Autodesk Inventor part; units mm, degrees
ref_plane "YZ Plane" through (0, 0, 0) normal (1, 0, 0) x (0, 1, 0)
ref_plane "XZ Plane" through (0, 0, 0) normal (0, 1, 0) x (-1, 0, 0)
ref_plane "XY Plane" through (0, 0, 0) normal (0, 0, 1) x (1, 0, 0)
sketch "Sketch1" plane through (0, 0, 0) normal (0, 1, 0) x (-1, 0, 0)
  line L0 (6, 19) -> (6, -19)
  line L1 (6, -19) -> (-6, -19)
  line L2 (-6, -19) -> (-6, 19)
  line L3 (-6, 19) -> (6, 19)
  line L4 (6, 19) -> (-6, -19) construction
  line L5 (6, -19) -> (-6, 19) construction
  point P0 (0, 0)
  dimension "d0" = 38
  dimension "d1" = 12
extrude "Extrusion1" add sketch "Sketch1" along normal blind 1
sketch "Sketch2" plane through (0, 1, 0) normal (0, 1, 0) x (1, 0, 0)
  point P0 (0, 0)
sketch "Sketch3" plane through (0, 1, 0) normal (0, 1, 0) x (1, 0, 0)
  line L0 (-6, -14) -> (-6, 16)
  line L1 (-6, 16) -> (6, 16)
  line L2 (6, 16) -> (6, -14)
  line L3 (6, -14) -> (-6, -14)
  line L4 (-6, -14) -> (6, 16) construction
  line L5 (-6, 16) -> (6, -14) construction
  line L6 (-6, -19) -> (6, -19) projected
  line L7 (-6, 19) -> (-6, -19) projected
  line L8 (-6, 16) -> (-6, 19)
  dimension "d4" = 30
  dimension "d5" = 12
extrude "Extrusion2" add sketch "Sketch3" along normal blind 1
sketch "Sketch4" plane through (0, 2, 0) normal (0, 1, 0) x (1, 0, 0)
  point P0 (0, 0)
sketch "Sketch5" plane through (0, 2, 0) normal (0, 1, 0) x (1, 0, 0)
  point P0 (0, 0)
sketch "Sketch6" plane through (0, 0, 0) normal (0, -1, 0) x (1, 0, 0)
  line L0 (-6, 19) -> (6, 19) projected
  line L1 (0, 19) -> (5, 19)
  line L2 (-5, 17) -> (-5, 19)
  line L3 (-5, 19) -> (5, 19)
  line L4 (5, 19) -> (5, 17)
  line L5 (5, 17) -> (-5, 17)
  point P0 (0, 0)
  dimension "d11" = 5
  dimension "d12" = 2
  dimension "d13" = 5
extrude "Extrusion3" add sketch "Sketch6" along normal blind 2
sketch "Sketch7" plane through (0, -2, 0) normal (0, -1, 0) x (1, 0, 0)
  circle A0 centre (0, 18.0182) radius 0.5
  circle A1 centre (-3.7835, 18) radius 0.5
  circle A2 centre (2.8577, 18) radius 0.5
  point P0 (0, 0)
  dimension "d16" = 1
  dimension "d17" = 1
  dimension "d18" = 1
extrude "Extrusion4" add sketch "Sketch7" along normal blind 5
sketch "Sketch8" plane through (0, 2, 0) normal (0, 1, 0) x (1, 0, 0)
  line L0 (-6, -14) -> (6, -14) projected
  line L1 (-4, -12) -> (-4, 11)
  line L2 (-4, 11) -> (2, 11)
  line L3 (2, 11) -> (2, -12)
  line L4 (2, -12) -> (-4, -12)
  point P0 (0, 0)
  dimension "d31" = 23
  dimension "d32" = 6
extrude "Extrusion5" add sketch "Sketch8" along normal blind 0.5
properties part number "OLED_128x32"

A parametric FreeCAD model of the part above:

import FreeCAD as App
import Part
import Sketcher
from FreeCAD import Vector


def add_polygon(sketch, points):
    """Adds a closed chain of lines whose ends are joined by coincident constraints."""
    first, n = sketch.GeometryCount, len(points)
    for a, b in zip(points, points[1:] + points[:1]):
        sketch.addGeometry(Part.LineSegment(App.Vector(*a, 0), App.Vector(*b, 0)), False)
    for i in range(n):
        sketch.addConstraint(Sketcher.Constraint("Coincident", first + i, 2, first + (i + 1) % n, 1))

doc = App.newDocument("Part")
params = doc.addObject("Spreadsheet::Sheet", "Params")
for row, (alias, value) in enumerate([
    ("sketch1_width", "12 mm"),
    ("sketch1_height", "38 mm"),
    ("pad1_length", "1 mm"),
    ("sketch2_width", "12 mm"),
    ("sketch2_height", "30 mm"),
    ("pad2_length", "1 mm"),
    ("sketch3_height", "2 mm"),
    ("pad3_length", "2 mm"),
    ("sketch4_diameter", "1 mm"),
    ("pad4_length", "5 mm"),
    ("sketch5_width", "6 mm"),
    ("sketch5_height", "23 mm"),
    ("pad5_length", "0.5 mm"),
], start=1):
    params.set(f"A{row}", alias)
    params.set(f"B{row}", "=" + value)
    params.setAlias(f"B{row}", alias)

body = doc.addObject("PartDesign::Body", "Body")

sketch1 = body.newObject("Sketcher::SketchObject", "Sketch")
sketch1.AttachmentSupport = (doc.getObject("XZ_Plane"), [""])
sketch1.MapMode = "FlatFace"
add_polygon(sketch1, [(-6, -19), (-6, 19), (6, 19), (6, -19)])
sketch1.addConstraint([
    Sketcher.Constraint("Vertical", 0),
    Sketcher.Constraint("Horizontal", 1),
    Sketcher.Constraint("Vertical", 2),
    Sketcher.Constraint("Horizontal", 3),
    Sketcher.Constraint("Symmetric", 0, 2, 2, 2, -1, 1),
    Sketcher.Constraint("DistanceX", 1, 1, 1, 2, 12.0),
    Sketcher.Constraint("DistanceY", 0, 1, 0, 2, 38.0),
])
sketch1.setExpression("Constraints[9]", "Params.sketch1_width")
sketch1.setExpression("Constraints[10]", "Params.sketch1_height")
pad1 = body.newObject("PartDesign::Pad", "Pad")
pad1.Profile = sketch1
pad1.setExpression("Length", "Params.pad1_length")
pad1.Reversed = True

sketch2 = body.newObject("Sketcher::SketchObject", "Sketch001")
sketch2.AttachmentSupport = (doc.getObject("XZ_Plane"), [""])
sketch2.MapMode = "FlatFace"
sketch2.AttachmentOffset = App.Placement(Vector(0, 0, -1), App.Rotation())
add_polygon(sketch2, [(-6, -16), (-6, 14), (6, 14), (6, -16)])
sketch2.addConstraint([
    Sketcher.Constraint("Vertical", 0),
    Sketcher.Constraint("Horizontal", 1),
    Sketcher.Constraint("Vertical", 2),
    Sketcher.Constraint("Horizontal", 3),
    Sketcher.Constraint("DistanceX", 1, 1, 1, 2, 12.0),
    Sketcher.Constraint("DistanceY", 0, 1, 0, 2, 30.0),
    Sketcher.Constraint("DistanceX", 0, 2, -1, 1, 6.0),
    Sketcher.Constraint("DistanceY", -1, 1, 0, 2, 14.0),
])
sketch2.setExpression("Constraints[8]", "Params.sketch2_width")
sketch2.setExpression("Constraints[9]", "Params.sketch2_height")
pad2 = body.newObject("PartDesign::Pad", "Pad001")
pad2.Profile = sketch2
pad2.setExpression("Length", "Params.pad2_length")
pad2.Reversed = True

sketch3 = body.newObject("Sketcher::SketchObject", "Sketch002")
sketch3.AttachmentSupport = (doc.getObject("XZ_Plane"), [""])
sketch3.MapMode = "FlatFace"
add_polygon(sketch3, [(5, 19), (-5, 19), (-5, 17), (5, 17)])
sketch3.addConstraint([
    Sketcher.Constraint("Horizontal", 0),
    Sketcher.Constraint("Vertical", 1),
    Sketcher.Constraint("Horizontal", 2),
    Sketcher.Constraint("Vertical", 3),
    Sketcher.Constraint("DistanceY", 1, 2, 1, 1, 2.0),
    Sketcher.Constraint("DistanceX", 0, 2, -1, 1, 5.0),
    Sketcher.Constraint("DistanceX", -1, 1, 2, 2, 5.0),
    Sketcher.Constraint("DistanceY", -1, 1, 0, 2, 19.0),
])
sketch3.setExpression("Constraints[8]", "Params.sketch3_height")
pad3 = body.newObject("PartDesign::Pad", "Pad002")
pad3.Profile = sketch3
pad3.setExpression("Length", "Params.pad3_length")

sketch4 = body.newObject("Sketcher::SketchObject", "Sketch003")
sketch4.AttachmentSupport = (doc.getObject("XZ_Plane"), [""])
sketch4.MapMode = "FlatFace"
sketch4.AttachmentOffset = App.Placement(Vector(0, 0, 2), App.Rotation())
sketch4.addGeometry([
    Part.Circle(Vector(0, 18, 0), Vector(0, 0, 1), 0.5),
    Part.Circle(Vector(-3.8, 18, 0), Vector(0, 0, 1), 0.5),
    Part.Circle(Vector(2.9, 18, 0), Vector(0, 0, 1), 0.5),
], False)
sketch4.addConstraint([
    Sketcher.Constraint("Equal", 0, 1),
    Sketcher.Constraint("Equal", 1, 2),
    Sketcher.Constraint("PointOnObject", 0, 3, -2),
    Sketcher.Constraint("Horizontal", 1, 3, 2, 3),
    Sketcher.Constraint("Diameter", 0, 1.0),
    Sketcher.Constraint("DistanceY", -1, 1, 1, 3, 18.0),
    Sketcher.Constraint("DistanceY", -1, 1, 0, 3, 18.0182),
    Sketcher.Constraint("DistanceX", 1, 3, -1, 1, 3.7835),
    Sketcher.Constraint("DistanceX", -1, 1, 2, 3, 2.8577),
])
sketch4.setExpression("Constraints[4]", "Params.sketch4_diameter")
pad4 = body.newObject("PartDesign::Pad", "Pad003")
pad4.Profile = sketch4
pad4.setExpression("Length", "Params.pad4_length")

sketch5 = body.newObject("Sketcher::SketchObject", "Sketch004")
sketch5.AttachmentSupport = (doc.getObject("XZ_Plane"), [""])
sketch5.MapMode = "FlatFace"
sketch5.AttachmentOffset = App.Placement(Vector(0, 0, -2), App.Rotation())
add_polygon(sketch5, [(-4, -11), (-4, 12), (2, 12), (2, -11)])
sketch5.addConstraint([
    Sketcher.Constraint("Vertical", 0),
    Sketcher.Constraint("Horizontal", 1),
    Sketcher.Constraint("Vertical", 2),
    Sketcher.Constraint("Horizontal", 3),
    Sketcher.Constraint("DistanceX", 1, 1, 1, 2, 6.0),
    Sketcher.Constraint("DistanceY", 0, 1, 0, 2, 23.0),
    Sketcher.Constraint("DistanceX", 0, 2, -1, 1, 4.0),
    Sketcher.Constraint("DistanceY", -1, 1, 0, 2, 12.0),
])
sketch5.setExpression("Constraints[8]", "Params.sketch5_width")
sketch5.setExpression("Constraints[9]", "Params.sketch5_height")
pad5 = body.newObject("PartDesign::Pad", "Pad004")
pad5.Profile = sketch5
pad5.setExpression("Length", "Params.pad5_length")
pad5.Reversed = True

doc.recompute()
